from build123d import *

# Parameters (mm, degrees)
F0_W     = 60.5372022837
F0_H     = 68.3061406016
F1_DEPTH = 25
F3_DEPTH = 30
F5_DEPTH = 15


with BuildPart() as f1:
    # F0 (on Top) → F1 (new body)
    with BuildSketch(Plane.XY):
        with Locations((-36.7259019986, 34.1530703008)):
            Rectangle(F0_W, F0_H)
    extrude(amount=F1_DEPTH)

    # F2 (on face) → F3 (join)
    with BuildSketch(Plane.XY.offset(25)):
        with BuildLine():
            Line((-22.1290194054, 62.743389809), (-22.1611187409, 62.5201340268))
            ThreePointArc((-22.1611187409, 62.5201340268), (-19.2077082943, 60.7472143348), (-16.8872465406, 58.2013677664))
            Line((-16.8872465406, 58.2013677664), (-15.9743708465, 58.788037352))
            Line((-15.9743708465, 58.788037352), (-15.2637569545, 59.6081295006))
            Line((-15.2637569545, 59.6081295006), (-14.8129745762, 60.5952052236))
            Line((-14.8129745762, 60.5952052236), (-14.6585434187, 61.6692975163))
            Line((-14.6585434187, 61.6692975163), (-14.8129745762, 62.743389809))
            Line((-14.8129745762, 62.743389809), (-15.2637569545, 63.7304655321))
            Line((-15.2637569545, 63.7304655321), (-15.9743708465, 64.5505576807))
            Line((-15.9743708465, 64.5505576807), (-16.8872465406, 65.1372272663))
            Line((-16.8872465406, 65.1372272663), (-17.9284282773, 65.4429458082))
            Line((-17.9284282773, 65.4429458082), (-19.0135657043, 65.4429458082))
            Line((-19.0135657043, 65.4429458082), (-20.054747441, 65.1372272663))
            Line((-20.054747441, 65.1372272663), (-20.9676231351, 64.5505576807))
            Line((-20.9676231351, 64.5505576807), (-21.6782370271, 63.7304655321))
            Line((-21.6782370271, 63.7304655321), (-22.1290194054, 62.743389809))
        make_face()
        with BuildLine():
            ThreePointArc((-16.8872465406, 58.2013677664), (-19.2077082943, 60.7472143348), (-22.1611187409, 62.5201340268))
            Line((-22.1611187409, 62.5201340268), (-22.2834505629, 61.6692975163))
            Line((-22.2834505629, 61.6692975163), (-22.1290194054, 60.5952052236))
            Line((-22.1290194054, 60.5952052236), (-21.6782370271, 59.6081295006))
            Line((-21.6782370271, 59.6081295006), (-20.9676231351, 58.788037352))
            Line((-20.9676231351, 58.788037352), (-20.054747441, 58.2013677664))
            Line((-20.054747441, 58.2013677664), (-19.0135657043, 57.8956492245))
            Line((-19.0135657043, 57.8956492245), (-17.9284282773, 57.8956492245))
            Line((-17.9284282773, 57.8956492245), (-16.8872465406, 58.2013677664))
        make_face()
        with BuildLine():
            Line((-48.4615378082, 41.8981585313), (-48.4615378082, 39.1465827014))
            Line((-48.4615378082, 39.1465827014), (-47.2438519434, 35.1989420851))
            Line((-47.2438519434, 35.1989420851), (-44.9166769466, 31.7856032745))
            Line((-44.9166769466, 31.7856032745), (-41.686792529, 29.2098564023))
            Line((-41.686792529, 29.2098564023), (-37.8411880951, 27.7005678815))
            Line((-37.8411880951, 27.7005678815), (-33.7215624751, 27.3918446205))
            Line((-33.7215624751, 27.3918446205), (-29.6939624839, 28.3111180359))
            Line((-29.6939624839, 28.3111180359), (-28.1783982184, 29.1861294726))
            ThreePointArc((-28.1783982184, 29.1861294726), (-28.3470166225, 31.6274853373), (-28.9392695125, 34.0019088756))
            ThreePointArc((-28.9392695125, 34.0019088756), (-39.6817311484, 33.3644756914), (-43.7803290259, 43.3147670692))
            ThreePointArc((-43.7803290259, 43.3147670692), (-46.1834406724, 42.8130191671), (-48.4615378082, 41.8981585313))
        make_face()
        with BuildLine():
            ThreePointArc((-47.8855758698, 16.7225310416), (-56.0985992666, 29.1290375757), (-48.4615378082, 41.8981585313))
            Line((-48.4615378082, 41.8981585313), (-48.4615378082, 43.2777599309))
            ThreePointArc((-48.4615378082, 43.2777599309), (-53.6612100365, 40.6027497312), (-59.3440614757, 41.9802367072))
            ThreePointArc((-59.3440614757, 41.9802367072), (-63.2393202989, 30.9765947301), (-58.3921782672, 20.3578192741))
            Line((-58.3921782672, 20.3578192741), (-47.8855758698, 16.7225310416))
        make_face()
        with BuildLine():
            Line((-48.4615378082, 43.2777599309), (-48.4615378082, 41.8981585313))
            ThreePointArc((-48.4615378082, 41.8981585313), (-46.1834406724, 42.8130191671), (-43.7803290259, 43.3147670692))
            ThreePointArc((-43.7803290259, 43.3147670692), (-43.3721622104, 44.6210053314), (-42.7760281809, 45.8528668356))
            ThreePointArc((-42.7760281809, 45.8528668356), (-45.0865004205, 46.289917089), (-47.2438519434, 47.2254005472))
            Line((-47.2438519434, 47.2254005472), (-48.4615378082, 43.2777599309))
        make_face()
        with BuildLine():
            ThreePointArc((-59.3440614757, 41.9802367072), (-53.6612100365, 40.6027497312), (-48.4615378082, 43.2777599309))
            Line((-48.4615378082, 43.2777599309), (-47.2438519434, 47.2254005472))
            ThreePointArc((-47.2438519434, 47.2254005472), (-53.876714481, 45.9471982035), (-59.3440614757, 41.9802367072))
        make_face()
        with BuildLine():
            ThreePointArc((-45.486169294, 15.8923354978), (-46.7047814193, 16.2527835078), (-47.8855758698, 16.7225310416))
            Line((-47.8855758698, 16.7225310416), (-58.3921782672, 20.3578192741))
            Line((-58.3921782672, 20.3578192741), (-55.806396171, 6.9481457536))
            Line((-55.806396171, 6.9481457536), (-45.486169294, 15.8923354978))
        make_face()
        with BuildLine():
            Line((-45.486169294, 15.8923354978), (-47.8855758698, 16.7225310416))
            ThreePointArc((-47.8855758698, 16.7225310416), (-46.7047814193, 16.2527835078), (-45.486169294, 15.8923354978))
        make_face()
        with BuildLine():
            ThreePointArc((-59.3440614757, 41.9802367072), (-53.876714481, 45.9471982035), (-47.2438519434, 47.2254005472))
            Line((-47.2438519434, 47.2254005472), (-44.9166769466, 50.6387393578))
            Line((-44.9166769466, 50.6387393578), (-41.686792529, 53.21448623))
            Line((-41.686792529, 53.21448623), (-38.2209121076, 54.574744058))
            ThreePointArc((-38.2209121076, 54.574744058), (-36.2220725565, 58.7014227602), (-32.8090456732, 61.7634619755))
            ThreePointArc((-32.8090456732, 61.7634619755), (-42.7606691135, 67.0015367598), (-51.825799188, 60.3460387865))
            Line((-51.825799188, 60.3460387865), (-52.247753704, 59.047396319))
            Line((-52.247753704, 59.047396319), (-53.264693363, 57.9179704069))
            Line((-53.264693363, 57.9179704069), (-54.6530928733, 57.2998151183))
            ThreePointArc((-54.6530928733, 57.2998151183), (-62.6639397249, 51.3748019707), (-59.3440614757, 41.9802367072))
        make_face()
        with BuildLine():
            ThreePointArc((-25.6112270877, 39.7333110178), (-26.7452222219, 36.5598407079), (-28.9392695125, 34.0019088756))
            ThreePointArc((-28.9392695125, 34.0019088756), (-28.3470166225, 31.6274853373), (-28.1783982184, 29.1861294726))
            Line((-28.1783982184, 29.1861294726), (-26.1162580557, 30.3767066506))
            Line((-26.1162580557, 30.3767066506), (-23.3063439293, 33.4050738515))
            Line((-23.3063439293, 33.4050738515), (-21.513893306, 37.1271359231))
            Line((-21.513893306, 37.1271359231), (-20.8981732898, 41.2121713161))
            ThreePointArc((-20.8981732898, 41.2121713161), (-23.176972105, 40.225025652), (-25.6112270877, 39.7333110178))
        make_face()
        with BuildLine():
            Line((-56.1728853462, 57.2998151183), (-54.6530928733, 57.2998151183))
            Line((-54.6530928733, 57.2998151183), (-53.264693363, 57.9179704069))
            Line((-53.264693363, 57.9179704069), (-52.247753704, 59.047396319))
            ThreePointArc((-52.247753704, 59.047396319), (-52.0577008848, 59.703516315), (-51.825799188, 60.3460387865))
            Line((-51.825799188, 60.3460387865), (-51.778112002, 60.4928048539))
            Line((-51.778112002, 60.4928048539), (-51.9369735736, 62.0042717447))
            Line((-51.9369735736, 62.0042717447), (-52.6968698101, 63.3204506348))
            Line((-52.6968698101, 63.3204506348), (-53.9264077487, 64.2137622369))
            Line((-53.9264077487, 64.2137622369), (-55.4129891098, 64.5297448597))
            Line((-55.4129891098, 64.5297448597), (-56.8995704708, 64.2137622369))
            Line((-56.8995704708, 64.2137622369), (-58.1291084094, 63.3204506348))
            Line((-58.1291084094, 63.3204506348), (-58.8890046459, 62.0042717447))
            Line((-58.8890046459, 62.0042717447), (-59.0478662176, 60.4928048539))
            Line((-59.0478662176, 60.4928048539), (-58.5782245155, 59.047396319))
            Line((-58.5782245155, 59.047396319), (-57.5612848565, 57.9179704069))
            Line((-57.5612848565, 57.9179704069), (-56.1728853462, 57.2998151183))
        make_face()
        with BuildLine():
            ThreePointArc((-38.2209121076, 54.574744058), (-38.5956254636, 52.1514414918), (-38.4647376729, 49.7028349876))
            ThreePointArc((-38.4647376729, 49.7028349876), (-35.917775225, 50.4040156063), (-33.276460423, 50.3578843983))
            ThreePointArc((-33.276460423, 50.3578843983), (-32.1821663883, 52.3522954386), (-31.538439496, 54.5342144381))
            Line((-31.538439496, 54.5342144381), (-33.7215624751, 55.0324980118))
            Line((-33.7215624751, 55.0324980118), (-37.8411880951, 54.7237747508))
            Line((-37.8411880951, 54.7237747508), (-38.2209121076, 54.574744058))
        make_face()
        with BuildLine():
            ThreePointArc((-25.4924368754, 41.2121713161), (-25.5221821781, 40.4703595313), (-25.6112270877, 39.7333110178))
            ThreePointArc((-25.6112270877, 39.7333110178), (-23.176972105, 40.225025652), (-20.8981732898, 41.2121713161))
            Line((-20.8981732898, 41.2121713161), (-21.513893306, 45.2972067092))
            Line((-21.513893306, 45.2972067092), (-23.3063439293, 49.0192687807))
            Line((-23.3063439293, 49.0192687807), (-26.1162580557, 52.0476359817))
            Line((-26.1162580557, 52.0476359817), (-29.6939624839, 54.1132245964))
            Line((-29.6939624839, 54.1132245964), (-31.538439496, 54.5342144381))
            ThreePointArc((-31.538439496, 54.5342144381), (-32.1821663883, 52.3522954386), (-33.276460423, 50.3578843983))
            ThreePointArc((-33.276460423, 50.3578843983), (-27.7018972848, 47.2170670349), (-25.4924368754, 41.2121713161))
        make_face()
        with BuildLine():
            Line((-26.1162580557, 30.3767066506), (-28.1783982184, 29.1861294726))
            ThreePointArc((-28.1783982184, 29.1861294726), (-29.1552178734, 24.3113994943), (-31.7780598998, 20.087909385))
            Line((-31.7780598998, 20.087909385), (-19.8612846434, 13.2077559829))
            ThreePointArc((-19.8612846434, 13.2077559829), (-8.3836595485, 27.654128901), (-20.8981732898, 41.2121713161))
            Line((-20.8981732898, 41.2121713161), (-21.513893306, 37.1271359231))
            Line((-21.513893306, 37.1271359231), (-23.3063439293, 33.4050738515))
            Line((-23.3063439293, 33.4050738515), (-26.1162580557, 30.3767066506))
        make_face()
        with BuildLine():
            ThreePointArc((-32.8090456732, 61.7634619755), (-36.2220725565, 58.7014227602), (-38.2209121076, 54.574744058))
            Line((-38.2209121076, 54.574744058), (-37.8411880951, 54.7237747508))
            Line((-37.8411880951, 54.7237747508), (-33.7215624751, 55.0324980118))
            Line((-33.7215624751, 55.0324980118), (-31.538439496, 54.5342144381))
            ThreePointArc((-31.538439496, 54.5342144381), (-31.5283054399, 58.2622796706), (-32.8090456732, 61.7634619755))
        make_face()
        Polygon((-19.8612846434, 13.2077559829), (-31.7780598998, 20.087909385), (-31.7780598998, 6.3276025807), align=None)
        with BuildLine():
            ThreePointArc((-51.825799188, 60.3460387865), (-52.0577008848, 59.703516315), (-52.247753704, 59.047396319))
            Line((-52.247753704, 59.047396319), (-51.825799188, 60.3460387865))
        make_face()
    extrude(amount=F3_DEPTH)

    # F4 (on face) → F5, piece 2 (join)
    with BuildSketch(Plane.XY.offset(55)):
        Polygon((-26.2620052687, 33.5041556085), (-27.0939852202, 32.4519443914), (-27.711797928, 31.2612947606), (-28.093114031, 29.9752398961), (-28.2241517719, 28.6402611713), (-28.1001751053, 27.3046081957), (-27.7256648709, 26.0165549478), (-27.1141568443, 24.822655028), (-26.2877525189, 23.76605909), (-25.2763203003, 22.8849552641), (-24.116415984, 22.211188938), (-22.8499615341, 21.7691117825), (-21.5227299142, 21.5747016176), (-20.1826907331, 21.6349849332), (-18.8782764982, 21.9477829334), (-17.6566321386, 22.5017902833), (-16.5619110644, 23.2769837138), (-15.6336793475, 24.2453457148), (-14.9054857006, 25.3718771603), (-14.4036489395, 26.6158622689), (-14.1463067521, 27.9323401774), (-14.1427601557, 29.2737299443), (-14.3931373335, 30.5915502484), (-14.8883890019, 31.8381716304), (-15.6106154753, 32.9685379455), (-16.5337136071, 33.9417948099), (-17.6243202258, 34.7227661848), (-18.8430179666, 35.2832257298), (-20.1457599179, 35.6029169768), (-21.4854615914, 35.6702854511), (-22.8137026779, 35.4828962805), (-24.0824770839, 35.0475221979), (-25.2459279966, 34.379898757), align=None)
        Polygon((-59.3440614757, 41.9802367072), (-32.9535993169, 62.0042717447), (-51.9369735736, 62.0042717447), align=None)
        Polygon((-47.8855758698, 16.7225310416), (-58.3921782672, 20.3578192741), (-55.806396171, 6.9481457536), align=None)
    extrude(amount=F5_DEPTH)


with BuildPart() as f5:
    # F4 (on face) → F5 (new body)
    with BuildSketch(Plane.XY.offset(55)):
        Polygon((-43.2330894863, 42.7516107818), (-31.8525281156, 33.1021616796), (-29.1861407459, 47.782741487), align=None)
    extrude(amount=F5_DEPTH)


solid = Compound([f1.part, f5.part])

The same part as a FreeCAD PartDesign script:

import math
import FreeCAD as App
import Part
import Sketcher
from FreeCAD import Vector
Q = App.Units.Quantity

doc = App.newDocument("Part")
body = doc.addObject("PartDesign::Body", "Body")

sketch1 = doc.addObject("Sketcher::SketchObject", "Sketch")
body.addObject(sketch1)
sketch1.AttachmentSupport = (doc.XY_Plane, [""])
sketch1.MapMode = "FlatFace"
sketch1.addGeometry(Part.LineSegment(Vector(-66.994503, 68.306141, 0), Vector(-66.994503, 0, 0)), False)
sketch1.addGeometry(Part.LineSegment(Vector(-66.994503, 0, 0), Vector(-6.457301, 0, 0)), False)
sketch1.addGeometry(Part.LineSegment(Vector(-6.457301, 0, 0), Vector(-6.457301, 68.306141, 0)), False)
sketch1.addGeometry(Part.LineSegment(Vector(-6.457301, 68.306141, 0), Vector(-66.994503, 68.306141, 0)), False)
sketch1.addConstraint(Sketcher.Constraint("Coincident", 0, 2, 1, 1))
sketch1.addConstraint(Sketcher.Constraint("Coincident", 1, 2, 2, 1))
sketch1.addConstraint(Sketcher.Constraint("Coincident", 2, 2, 3, 1))
sketch1.addConstraint(Sketcher.Constraint("Coincident", 3, 2, 0, 1))
sketch1.addConstraint(Sketcher.Constraint("Vertical", 0))
sketch1.addConstraint(Sketcher.Constraint("Horizontal", 1))
sketch1.addConstraint(Sketcher.Constraint("Vertical", 2))
sketch1.addConstraint(Sketcher.Constraint("Horizontal", 3))
sketch1.addConstraint(Sketcher.Constraint("PointOnObject", 0, 2, -1))
sketch1.addConstraint(Sketcher.Constraint("DistanceY", 0, 2, 0, 1, 68.306141))
sketch1.addConstraint(Sketcher.Constraint("DistanceX", 1, 2, -1, 1, 6.457301))
sketch1.addConstraint(Sketcher.Constraint("DistanceX", 1, 1, 1, 2, 60.537202))
pad1 = doc.addObject("PartDesign::Pad", "Pad")
body.addObject(pad1)
pad1.Profile = sketch1
pad1.Length = 25

sketch2 = doc.addObject("Sketcher::SketchObject", "Sketch001")
body.addObject(sketch2)
sketch2.AttachmentSupport = (doc.XY_Plane, [""])
sketch2.MapMode = "FlatFace"
sketch2.AttachmentOffset = App.Placement(Vector(0, 0, 25), App.Rotation())
sketch2.addGeometry(Part.LineSegment(Vector(-22.129019, 62.74339, 0), Vector(-22.161119, 62.520134, 0)), False)
sketch2.addGeometry(Part.LineSegment(Vector(-22.161119, 62.520134, 0), Vector(-22.283451, 61.669298, 0)), False)
sketch2.addGeometry(Part.LineSegment(Vector(-22.283451, 61.669298, 0), Vector(-22.129019, 60.595205, 0)), False)
sketch2.addGeometry(Part.LineSegment(Vector(-22.129019, 60.595205, 0), Vector(-21.678237, 59.60813, 0)), False)
sketch2.addGeometry(Part.LineSegment(Vector(-21.678237, 59.60813, 0), Vector(-20.967623, 58.788037, 0)), False)
sketch2.addGeometry(Part.LineSegment(Vector(-20.967623, 58.788037, 0), Vector(-20.054747, 58.201368, 0)), False)
sketch2.addGeometry(Part.LineSegment(Vector(-20.054747, 58.201368, 0), Vector(-19.013566, 57.895649, 0)), False)
sketch2.addGeometry(Part.LineSegment(Vector(-19.013566, 57.895649, 0), Vector(-17.928428, 57.895649, 0)), False)
sketch2.addGeometry(Part.LineSegment(Vector(-17.928428, 57.895649, 0), Vector(-16.887247, 58.201368, 0)), False)
sketch2.addGeometry(Part.LineSegment(Vector(-16.887247, 58.201368, 0), Vector(-15.974371, 58.788037, 0)), False)
sketch2.addGeometry(Part.LineSegment(Vector(-15.974371, 58.788037, 0), Vector(-15.263757, 59.60813, 0)), False)
sketch2.addGeometry(Part.LineSegment(Vector(-15.263757, 59.60813, 0), Vector(-14.812975, 60.595205, 0)), False)
sketch2.addGeometry(Part.LineSegment(Vector(-14.812975, 60.595205, 0), Vector(-14.658543, 61.669298, 0)), False)
sketch2.addGeometry(Part.LineSegment(Vector(-14.658543, 61.669298, 0), Vector(-14.812975, 62.74339, 0)), False)
sketch2.addGeometry(Part.LineSegment(Vector(-14.812975, 62.74339, 0), Vector(-15.263757, 63.730466, 0)), False)
sketch2.addGeometry(Part.LineSegment(Vector(-15.263757, 63.730466, 0), Vector(-15.974371, 64.550558, 0)), False)
sketch2.addGeometry(Part.LineSegment(Vector(-15.974371, 64.550558, 0), Vector(-16.887247, 65.137227, 0)), False)
sketch2.addGeometry(Part.LineSegment(Vector(-16.887247, 65.137227, 0), Vector(-17.928428, 65.442946, 0)), False)
sketch2.addGeometry(Part.LineSegment(Vector(-17.928428, 65.442946, 0), Vector(-19.013566, 65.442946, 0)), False)
sketch2.addGeometry(Part.LineSegment(Vector(-19.013566, 65.442946, 0), Vector(-20.054747, 65.137227, 0)), False)
sketch2.addGeometry(Part.LineSegment(Vector(-20.054747, 65.137227, 0), Vector(-20.967623, 64.550558, 0)), False)
sketch2.addGeometry(Part.LineSegment(Vector(-20.967623, 64.550558, 0), Vector(-21.678237, 63.730466, 0)), False)
sketch2.addGeometry(Part.LineSegment(Vector(-21.678237, 63.730466, 0), Vector(-22.129019, 62.74339, 0)), False)
sketch2.addGeometry(Part.ArcOfCircle(Part.Circle(Vector(-41.972463, 56.426624, 0), Vector(0, 0, 1), 10.604247), math.radians(30.216821), math.radians(158.308554)), False)
sketch2.addGeometry(Part.LineSegment(Vector(-51.825799, 60.346039, 0), Vector(-51.778112, 60.492805, 0)), False)
sketch2.addGeometry(Part.LineSegment(Vector(-51.778112, 60.492805, 0), Vector(-51.936974, 62.004272, 0)), False)
sketch2.addGeometry(Part.LineSegment(Vector(-51.936974, 62.004272, 0), Vector(-52.69687, 63.320451, 0)), False)
sketch2.addGeometry(Part.LineSegment(Vector(-52.69687, 63.320451, 0), Vector(-53.926408, 64.213762, 0)), False)
sketch2.addGeometry(Part.LineSegment(Vector(-53.926408, 64.213762, 0), Vector(-55.412989, 64.529745, 0)), False)
sketch2.addGeometry(Part.LineSegment(Vector(-55.412989, 64.529745, 0), Vector(-56.89957, 64.213762, 0)), False)
sketch2.addGeometry(Part.LineSegment(Vector(-56.89957, 64.213762, 0), Vector(-58.129108, 63.320451, 0)), False)
sketch2.addGeometry(Part.LineSegment(Vector(-58.129108, 63.320451, 0), Vector(-58.889005, 62.004272, 0)), False)
sketch2.addGeometry(Part.LineSegment(Vector(-58.889005, 62.004272, 0), Vector(-59.047866, 60.492805, 0)), False)
sketch2.addGeometry(Part.LineSegment(Vector(-59.047866, 60.492805, 0), Vector(-58.578225, 59.047396, 0)), False)
sketch2.addGeometry(Part.LineSegment(Vector(-58.578225, 59.047396, 0), Vector(-57.561285, 57.91797, 0)), False)
sketch2.addGeometry(Part.LineSegment(Vector(-57.561285, 57.91797, 0), Vector(-56.172885, 57.299815, 0)), False)
sketch2.addGeometry(Part.LineSegment(Vector(-56.172885, 57.299815, 0), Vector(-54.653093, 57.299815, 0)), False)
sketch2.addGeometry(Part.ArcOfCircle(Part.Circle(Vector(-54.653093, 48.921821, 0), Vector(0, 0, 1), 8.377994), math.radians(90), math.radians(235.950046)), False)
sketch2.addGeometry(Part.ArcOfCircle(Part.Circle(Vector(-47.684139, 31.66138, 0), Vector(0, 0, 1), 15.570247), math.radians(138.491652), math.radians(226.549754)), False)
sketch2.addGeometry(Part.LineSegment(Vector(-58.392178, 20.357819, 0), Vector(-55.806396, 6.948146, 0)), False)
sketch2.addGeometry(Part.LineSegment(Vector(-55.806396, 6.948146, 0), Vector(-45.486169, 15.892335, 0)), False)
sketch2.addGeometry(Part.LineSegment(Vector(-45.486169, 15.892335, 0), Vector(-47.885576, 16.722531, 0)), False)
sketch2.addGeometry(Part.ArcOfCircle(Part.Circle(Vector(-42.139093, 29.4484, 0), Vector(0, 0, 1), 13.963159), math.radians(116.923132), math.radians(245.698009)), False)
sketch2.addGeometry(Part.LineSegment(Vector(-48.461538, 41.898159, 0), Vector(-48.461538, 39.146583, 0)), False)
sketch2.addGeometry(Part.LineSegment(Vector(-48.461538, 39.146583, 0), Vector(-47.243852, 35.198942, 0)), False)
sketch2.addGeometry(Part.LineSegment(Vector(-47.243852, 35.198942, 0), Vector(-44.916677, 31.785603, 0)), False)
sketch2.addGeometry(Part.LineSegment(Vector(-44.916677, 31.785603, 0), Vector(-41.686793, 29.209856, 0)), False)
sketch2.addGeometry(Part.LineSegment(Vector(-41.686793, 29.209856, 0), Vector(-37.841188, 27.700568, 0)), False)
sketch2.addGeometry(Part.LineSegment(Vector(-37.841188, 27.700568, 0), Vector(-33.721562, 27.391845, 0)), False)
sketch2.addGeometry(Part.LineSegment(Vector(-33.721562, 27.391845, 0), Vector(-29.693962, 28.311118, 0)), False)
sketch2.addGeometry(Part.LineSegment(Vector(-29.693962, 28.311118, 0), Vector(-28.178398, 29.186129, 0)), False)
sketch2.addGeometry(Part.ArcOfCircle(Part.Circle(Vector(-42.139093, 29.4484, 0), Vector(0, 0, 1), 13.963159), math.radians(-42.095671), math.radians(-1.076251)), False)
sketch2.addGeometry(Part.LineSegment(Vector(-31.77806, 20.087909, 0), Vector(-31.77806, 6.327603, 0)), False)
sketch2.addGeometry(Part.LineSegment(Vector(-31.77806, 6.327603, 0), Vector(-19.861285, 13.207756, 0)), False)
sketch2.addGeometry(Part.ArcOfCircle(Part.Circle(Vector(-22.553613, 27.129474, 0), Vector(0, 0, 1), 14.179663), math.radians(-79.054654), math.radians(83.295572)), False)
sketch2.addGeometry(Part.LineSegment(Vector(-20.898173, 41.212171, 0), Vector(-21.513893, 45.297207, 0)), False)
sketch2.addGeometry(Part.LineSegment(Vector(-21.513893, 45.297207, 0), Vector(-23.306344, 49.019269, 0)), False)
sketch2.addGeometry(Part.LineSegment(Vector(-23.306344, 49.019269, 0), Vector(-26.116258, 52.047636, 0)), False)
sketch2.addGeometry(Part.LineSegment(Vector(-26.116258, 52.047636, 0), Vector(-29.693962, 54.113225, 0)), False)
sketch2.addGeometry(Part.LineSegment(Vector(-29.693962, 54.113225, 0), Vector(-31.538439, 54.534214, 0)), False)
sketch2.addGeometry(Part.ArcOfCircle(Part.Circle(Vector(-41.972463, 56.426624, 0), Vector(0, 0, 1), 10.604247), math.radians(-10.279937), math.radians(30.216821)), False)
sketch2.addGeometry(Part.LineSegment(Vector(-41.686793, 53.214486, 0), Vector(-38.220912, 54.574744, 0)), False)
sketch2.addGeometry(Part.ArcOfCircle(Part.Circle(Vector(-26.732949, 51.557747, 0), Vector(0, 0, 1), 11.877523), math.radians(165.285134), math.radians(188.984657)), False)
sketch2.addGeometry(Part.ArcOfCircle(Part.Circle(Vector(-34.757253, 41.212171, 0), Vector(0, 0, 1), 9.264816), math.radians(80.802991), math.radians(113.588695)), False)
sketch2.addGeometry(Part.ArcOfCircle(Part.Circle(Vector(-34.757253, 41.212171, 0), Vector(0, 0, 1), 9.264816), math.radians(-9.184905), math.radians(80.802991)), False)
sketch2.addGeometry(Part.ArcOfCircle(Part.Circle(Vector(-34.757253, 41.212171, 0), Vector(0, 0, 1), 9.264816), math.radians(-51.099832), math.radians(-9.184905)), False)
sketch2.addGeometry(Part.ArcOfCircle(Part.Circle(Vector(-34.757253, 41.212171, 0), Vector(0, 0, 1), 9.264816), math.radians(166.882773), math.radians(308.900168)), False)
sketch2.addGeometry(Part.ArcOfCircle(Part.Circle(Vector(-34.757253, 41.212171, 0), Vector(0, 0, 1), 9.264816), math.radians(149.940801), math.radians(166.882773)), False)
sketch2.addGeometry(Part.ArcOfCircle(Part.Circle(Vector(-41.972463, 56.426624, 0), Vector(0, 0, 1), 10.604247), math.radians(-119.808435), math.radians(-94.345909)), False)
sketch2.addGeometry(Part.LineSegment(Vector(-47.243852, 47.225401, 0), Vector(-44.916677, 50.638739, 0)), False)
sketch2.addGeometry(Part.LineSegment(Vector(-44.916677, 50.638739, 0), Vector(-41.686793, 53.214486, 0)), False)
sketch2.addConstraint(Sketcher.Constraint("Coincident", 0, 2, 1, 1))
sketch2.addConstraint(Sketcher.Constraint("Coincident", 1, 2, 2, 1))
sketch2.addConstraint(Sketcher.Constraint("Coincident", 2, 2, 3, 1))
sketch2.addConstraint(Sketcher.Constraint("Coincident", 3, 2, 4, 1))
sketch2.addConstraint(Sketcher.Constraint("Coincident", 4, 2, 5, 1))
sketch2.addConstraint(Sketcher.Constraint("Coincident", 5, 2, 6, 1))
sketch2.addConstraint(Sketcher.Constraint("Coincident", 6, 2, 7, 1))
sketch2.addConstraint(Sketcher.Constraint("Coincident", 7, 2, 8, 1))
sketch2.addConstraint(Sketcher.Constraint("Coincident", 8, 2, 9, 1))
sketch2.addConstraint(Sketcher.Constraint("Coincident", 9, 2, 10, 1))
sketch2.addConstraint(Sketcher.Constraint("Coincident", 10, 2, 11, 1))
sketch2.addConstraint(Sketcher.Constraint("Coincident", 11, 2, 12, 1))
sketch2.addConstraint(Sketcher.Constraint("Coincident", 12, 2, 13, 1))
sketch2.addConstraint(Sketcher.Constraint("Coincident", 13, 2, 14, 1))
sketch2.addConstraint(Sketcher.Constraint("Coincident", 14, 2, 15, 1))
sketch2.addConstraint(Sketcher.Constraint("Coincident", 15, 2, 16, 1))
sketch2.addConstraint(Sketcher.Constraint("Coincident", 16, 2, 17, 1))
sketch2.addConstraint(Sketcher.Constraint("Coincident", 17, 2, 18, 1))
sketch2.addConstraint(Sketcher.Constraint("Coincident", 18, 2, 19, 1))
sketch2.addConstraint(Sketcher.Constraint("Coincident", 19, 2, 20, 1))
sketch2.addConstraint(Sketcher.Constraint("Coincident", 20, 2, 21, 1))
sketch2.addConstraint(Sketcher.Constraint("Coincident", 21, 2, 22, 1))
sketch2.addConstraint(Sketcher.Constraint("Coincident", 22, 2, 0, 1))
sketch2.addConstraint(Sketcher.Constraint("Coincident", 23, 2, 24, 1))
sketch2.addConstraint(Sketcher.Constraint("Coincident", 24, 2, 25, 1))
sketch2.addConstraint(Sketcher.Constraint("Coincident", 25, 2, 26, 1))
sketch2.addConstraint(Sketcher.Constraint("Coincident", 26, 2, 27, 1))
sketch2.addConstraint(Sketcher.Constraint("Coincident", 27, 2, 28, 1))
sketch2.addConstraint(Sketcher.Constraint("Coincident", 28, 2, 29, 1))
sketch2.addConstraint(Sketcher.Constraint("Coincident", 29, 2, 30, 1))
sketch2.addConstraint(Sketcher.Constraint("Coincident", 30, 2, 31, 1))
sketch2.addConstraint(Sketcher.Constraint("Coincident", 31, 2, 32, 1))
sketch2.addConstraint(Sketcher.Constraint("Coincident", 32, 2, 33, 1))
sketch2.addConstraint(Sketcher.Constraint("Coincident", 33, 2, 34, 1))
sketch2.addConstraint(Sketcher.Constraint("Coincident", 34, 2, 35, 1))
sketch2.addConstraint(Sketcher.Constraint("Coincident", 35, 2, 36, 1))
sketch2.addConstraint(Sketcher.Constraint("Tangent", 36, 2, 37, 1))
sketch2.addConstraint(Sketcher.Constraint("Coincident", 37, 2, 38, 1))
sketch2.addConstraint(Sketcher.Constraint("Coincident", 38, 2, 39, 1))
sketch2.addConstraint(Sketcher.Constraint("Coincident", 39, 2, 40, 1))
sketch2.addConstraint(Sketcher.Constraint("Coincident", 40, 2, 41, 1))
sketch2.addConstraint(Sketcher.Constraint("Coincident", 41, 2, 42, 2))
sketch2.addConstraint(Sketcher.Constraint("Coincident", 42, 1, 43, 1))
sketch2.addConstraint(Sketcher.Constraint("Coincident", 43, 2, 44, 1))
sketch2.addConstraint(Sketcher.Constraint("Coincident", 44, 2, 45, 1))
sketch2.addConstraint(Sketcher.Constraint("Coincident", 45, 2, 46, 1))
sketch2.addConstraint(Sketcher.Constraint("Coincident", 46, 2, 47, 1))
sketch2.addConstraint(Sketcher.Constraint("Coincident", 47, 2, 48, 1))
sketch2.addConstraint(Sketcher.Constraint("Coincident", 48, 2, 49, 1))
sketch2.addConstraint(Sketcher.Constraint("Coincident", 49, 2, 50, 1))
sketch2.addConstraint(Sketcher.Constraint("Coincident", 50, 2, 51, 2))
sketch2.addConstraint(Sketcher.Constraint("Coincident", 51, 1, 52, 1))
sketch2.addConstraint(Sketcher.Constraint("Coincident", 52, 2, 53, 1))
sketch2.addConstraint(Sketcher.Constraint("Coincident", 53, 2, 54, 1))
sketch2.addConstraint(Sketcher.Constraint("Coincident", 54, 2, 55, 1))
sketch2.addConstraint(Sketcher.Constraint("Coincident", 55, 2, 56, 1))
sketch2.addConstraint(Sketcher.Constraint("Coincident", 56, 2, 57, 1))
sketch2.addConstraint(Sketcher.Constraint("Coincident", 57, 2, 58, 1))
sketch2.addConstraint(Sketcher.Constraint("Coincident", 58, 2, 59, 1))
sketch2.addConstraint(Sketcher.Constraint("Coincident", 59, 2, 60, 1))
sketch2.addConstraint(Sketcher.Constraint("Tangent", 60, 2, 23, 1))
sketch2.addConstraint(Sketcher.Constraint("Coincident", 61, 2, 62, 1))
sketch2.addConstraint(Sketcher.Constraint("Coincident", 62, 2, 63, 2))
sketch2.addConstraint(Sketcher.Constraint("Tangent", 63, 1, 64, 2))
sketch2.addConstraint(Sketcher.Constraint("Tangent", 64, 1, 65, 2))
sketch2.addConstraint(Sketcher.Constraint("Tangent", 65, 1, 66, 2))
sketch2.addConstraint(Sketcher.Constraint("Tangent", 66, 1, 67, 2))
sketch2.addConstraint(Sketcher.Constraint("Coincident", 67, 1, 68, 2))
sketch2.addConstraint(Sketcher.Constraint("Coincident", 68, 1, 69, 1))
sketch2.addConstraint(Sketcher.Constraint("Coincident", 69, 2, 70, 1))
sketch2.addConstraint(Sketcher.Constraint("Coincident", 70, 2, 61, 1))
sketch2.addConstraint(Sketcher.Constraint("Horizontal", 7))
sketch2.addConstraint(Sketcher.Constraint("Horizontal", 18))
sketch2.addConstraint(Sketcher.Constraint("Horizontal", 36))
sketch2.addConstraint(Sketcher.Constraint("Vertical", 43))
sketch2.addConstraint(Sketcher.Constraint("Vertical", 52))
sketch2.addConstraint(Sketcher.Constraint("Coincident", 51, 3, 42, 3))
sketch2.addConstraint(Sketcher.Constraint("Coincident", 65, 3, 63, 3))
sketch2.addConstraint(Sketcher.Constraint("Coincident", 67, 3, 63, 3))
sketch2.addConstraint(Sketcher.Constraint("Coincident", 68, 3, 23, 3))
sketch2.addConstraint(Sketcher.Constraint("Equal", 42, 51))
sketch2.addConstraint(Sketcher.Constraint("Equal", 23, 60))
sketch2.addConstraint(Sketcher.Constraint("Equal", 60, 68))
sketch2.addConstraint(Sketcher.Constraint("Parallel", 0, 1))
sketch2.addConstraint(Sketcher.Constraint("Parallel", 1, 12))
sketch2.addConstraint(Sketcher.Constraint("Parallel", 2, 13))
sketch2.addConstraint(Sketcher.Constraint("Parallel", 3, 14))
sketch2.addConstraint(Sketcher.Constraint("Parallel", 4, 15))
sketch2.addConstraint(Sketcher.Constraint("Parallel", 5, 16))
sketch2.addConstraint(Sketcher.Constraint("Parallel", 6, 17))
sketch2.addConstraint(Sketcher.Constraint("Parallel", 8, 19))
sketch2.addConstraint(Sketcher.Constraint("Parallel", 9, 20))
sketch2.addConstraint(Sketcher.Constraint("Parallel", 10, 21))
sketch2.addConstraint(Sketcher.Constraint("Parallel", 11, 22))
sketch2.addConstraint(Sketcher.Constraint("Perpendicular", 26, 50))
sketch2.addConstraint(Sketcher.Constraint("Parallel", 50, 53))
sketch2.addConstraint(Sketcher.Constraint("Perpendicular", 31, 58))
sketch2.addConstraint(Sketcher.Constraint("Horizontal", 5, 2, 8, 2))
sketch2.addConstraint(Sketcher.Constraint("Horizontal", 4, 2, 9, 2))
sketch2.addConstraint(Sketcher.Constraint("Horizontal", 3, 2, 10, 2))
sketch2.addConstraint(Sketcher.Constraint("Horizontal", 2, 2, 11, 2))
sketch2.addConstraint(Sketcher.Constraint("Horizontal", 1, 2, 12, 2))
sketch2.addConstraint(Sketcher.Constraint("Horizontal", 16, 2, 19, 2))
sketch2.addConstraint(Sketcher.Constraint("Horizontal", 15, 2, 20, 2))
sketch2.addConstraint(Sketcher.Constraint("Horizontal", 14, 2, 21, 2))
sketch2.addConstraint(Sketcher.Constraint("Horizontal", 13, 2, 22, 2))
sketch2.addConstraint(Sketcher.Constraint("Horizontal", 27, 2, 29, 2))
sketch2.addConstraint(Sketcher.Constraint("Horizontal", 26, 2, 30, 2))
sketch2.addConstraint(Sketcher.Constraint("Horizontal", 25, 2, 31, 2))
sketch2.addConstraint(Sketcher.Constraint("Horizontal", 24, 2, 32, 2))
sketch2.addConstraint(Sketcher.Constraint("Horizontal", 67, 3, 54, 2))
sketch2.addConstraint(Sketcher.Constraint("Vertical", 11, 2, 13, 2))
sketch2.addConstraint(Sketcher.Constraint("Vertical", 10, 2, 14, 2))
sketch2.addConstraint(Sketcher.Constraint("Vertical", 9, 2, 15, 2))
sketch2.addConstraint(Sketcher.Constraint("Vertical", 8, 2, 16, 2))
sketch2.addConstraint(Sketcher.Constraint("Vertical", 7, 2, 17, 2))
sketch2.addConstraint(Sketcher.Constraint("Vertical", 6, 2, 18, 2))
sketch2.addConstraint(Sketcher.Constraint("Vertical", 5, 2, 19, 2))
sketch2.addConstraint(Sketcher.Constraint("Vertical", 4, 2, 20, 2))
sketch2.addConstraint(Sketcher.Constraint("Vertical", 3, 2, 21, 2))
sketch2.addConstraint(Sketcher.Constraint("Vertical", 2, 2, 22, 2))
sketch2.addConstraint(Sketcher.Constraint("Vertical", 49, 2, 58, 2))
sketch2.addConstraint(Sketcher.Constraint("Vertical", 44, 2, 68, 1))
sketch2.addConstraint(Sketcher.Constraint("Vertical", 45, 2, 69, 2))
sketch2.addConstraint(Sketcher.Constraint("Vertical", 46, 2, 70, 2))
sketch2.addConstraint(Sketcher.Constraint("Equal", 2, 3))
sketch2.addConstraint(Sketcher.Constraint("Equal", 3, 4))
sketch2.addConstraint(Sketcher.Constraint("Equal", 4, 5))
sketch2.addConstraint(Sketcher.Constraint("Equal", 5, 6))
sketch2.addConstraint(Sketcher.Constraint("Equal", 25, 26))
sketch2.addConstraint(Sketcher.Constraint("Equal", 26, 27))
sketch2.addConstraint(Sketcher.Constraint("Equal", 27, 28))
sketch2.addConstraint(Sketcher.Constraint("Equal", 28, 29))
sketch2.addConstraint(Sketcher.Constraint("Equal", 29, 30))
sketch2.addConstraint(Sketcher.Constraint("Equal", 30, 31))
sketch2.addConstraint(Sketcher.Constraint("Equal", 31, 32))
sketch2.addConstraint(Sketcher.Constraint("Equal", 32, 33))
sketch2.addConstraint(Sketcher.Constraint("Equal", 33, 34))
sketch2.addConstraint(Sketcher.Constraint("Equal", 34, 35))
sketch2.addConstraint(Sketcher.Constraint("Equal", 39, 40))
sketch2.addConstraint(Sketcher.Constraint("Equal", 44, 45))
sketch2.addConstraint(Sketcher.Constraint("Equal", 45, 46))
sketch2.addConstraint(Sketcher.Constraint("Equal", 46, 47))
sketch2.addConstraint(Sketcher.Constraint("Equal", 47, 48))
sketch2.addConstraint(Sketcher.Constraint("Equal", 48, 49))
sketch2.addConstraint(Sketcher.Constraint("Equal", 49, 55))
sketch2.addConstraint(Sketcher.Constraint("Equal", 55, 56))
sketch2.addConstraint(Sketcher.Constraint("Equal", 56, 57))
sketch2.addConstraint(Sketcher.Constraint("Equal", 57, 58))
sketch2.addConstraint(Sketcher.Constraint("Equal", 58, 69))
sketch2.addConstraint(Sketcher.Constraint("Equal", 69, 70))
sketch2.addConstraint(Sketcher.Constraint("Angle", 24, Q("72 deg")))
sketch2.addConstraint(Sketcher.Constraint("Angle", 25, Q("96 deg")))
sketch2.addConstraint(Sketcher.Constraint("Angle", 26, Q("120 deg")))
sketch2.addConstraint(Sketcher.Constraint("Angle", 27, Q("144 deg")))
sketch2.addConstraint(Sketcher.Constraint("Angle", 28, Q("168 deg")))
sketch2.addConstraint(Sketcher.Constraint("Angle", 33, Q("-72 deg")))
sketch2.addConstraint(Sketcher.Constraint("Angle", 34, Q("-48 deg")))
sketch2.addConstraint(Sketcher.Constraint("Angle", 35, Q("-24 deg")))
sketch2.addConstraint(Sketcher.Constraint("Radius", 42, 13.963159))
sketch2.addConstraint(Sketcher.Constraint("Radius", 23, 10.604247))
sketch2.addConstraint(Sketcher.Constraint("Radius", 37, 8.377994))
sketch2.addConstraint(Sketcher.Constraint("Radius", 38, 15.570247))
sketch2.addConstraint(Sketcher.Constraint("Radius", 54, 14.179663))
sketch2.addConstraint(Sketcher.Constraint("Radius", 62, 11.877523))
sketch2.addConstraint(Sketcher.Constraint("Radius", 63, 9.264816))
sketch2.addConstraint(Sketcher.Constraint("DistanceY", -1, 1, 42, 3, 29.4484))
sketch2.addConstraint(Sketcher.Constraint("DistanceX", 23, 2, -1, 1, 51.825799))
sketch2.addConstraint(Sketcher.Constraint("DistanceX", 50, 2, -1, 1, 28.178398))
sketch2.addConstraint(Sketcher.Constraint("DistanceY", -1, 1, 68, 1, 47.225401))
sketch2.addConstraint(Sketcher.Constraint("Distance", 0, 0.225552))
sketch2.addConstraint(Sketcher.Constraint("Distance", 24, 0.154319))
sketch2.addConstraint(Sketcher.Constraint("Distance", 41, 2.538972))
sketch2.addConstraint(Sketcher.Constraint("Distance", 59, 1.891911))
sketch2.addConstraint(Sketcher.Constraint("DistanceX", 7, 1, 7, 2, 1.085137))
sketch2.addConstraint(Sketcher.Constraint("DistanceX", 36, 1, 36, 2, 1.519792))
sketch2.addConstraint(Sketcher.Constraint("DistanceY", 43, 2, 43, 1, 2.751576))
sketch2.addConstraint(Sketcher.Constraint("DistanceY", 52, 2, 52, 1, 13.760307))
sketch2.addConstraint(Sketcher.Constraint("DistanceY", -1, 1, 37, 3, 48.921821))
sketch2.addConstraint(Sketcher.Constraint("DistanceX", 38, 3, -1, 1, 47.684139))
sketch2.addConstraint(Sketcher.Constraint("DistanceY", -1, 1, 38, 3, 31.66138))
sketch2.addConstraint(Sketcher.Constraint("DistanceX", 62, 3, -1, 1, 26.732949))
sketch2.addConstraint(Sketcher.Constraint("DistanceY", -1, 1, 63, 3, 41.212171))
sketch2.addConstraint(Sketcher.Constraint("DistanceX", 0, 2, -1, 1, 22.161119))
sketch2.addConstraint(Sketcher.Constraint("DistanceX", 1, 2, -1, 1, 22.283451))
sketch2.addConstraint(Sketcher.Constraint("DistanceY", -1, 1, 3, 2, 59.60813))
sketch2.addConstraint(Sketcher.Constraint("DistanceY", -1, 1, 6, 2, 57.895649))
sketch2.addConstraint(Sketcher.Constraint("DistanceX", 7, 2, -1, 1, 17.928428))
sketch2.addConstraint(Sketcher.Constraint("DistanceX", 9, 2, -1, 1, 15.974371))
sketch2.addConstraint(Sketcher.Constraint("DistanceY", -1, 1, 13, 2, 62.74339))
sketch2.addConstraint(Sketcher.Constraint("DistanceY", -1, 1, 23, 2, 60.346039))
sketch2.addConstraint(Sketcher.Constraint("DistanceX", 38, 2, -1, 1, 58.392178))
sketch2.addConstraint(Sketcher.Constraint("DistanceX", 40, 2, -1, 1, 45.486169))
sketch2.addConstraint(Sketcher.Constraint("DistanceY", -1, 1, 41, 2, 16.722531))
sketch2.addConstraint(Sketcher.Constraint("DistanceY", -1, 1, 42, 1, 41.898159))
sketch2.addConstraint(Sketcher.Constraint("DistanceX", 44, 2, -1, 1, 47.243852))
sketch2.addConstraint(Sketcher.Constraint("DistanceX", 47, 2, -1, 1, 37.841188))
sketch2.addConstraint(Sketcher.Constraint("DistanceY", -1, 1, 49, 2, 28.311118))
sketch2.addConstraint(Sketcher.Constraint("DistanceY", -1, 1, 50, 2, 29.186129))
sketch2.addConstraint(Sketcher.Constraint("DistanceX", 51, 1, -1, 1, 31.77806))
sketch2.addConstraint(Sketcher.Constraint("DistanceY", -1, 1, 56, 2, 49.019269))
sketch2.addConstraint(Sketcher.Constraint("DistanceX", 57, 2, -1, 1, 26.116258))
sketch2.addConstraint(Sketcher.Constraint("DistanceX", 59, 2, -1, 1, 31.538439))
sketch2.addConstraint(Sketcher.Constraint("DistanceY", -1, 1, 60, 2, 61.763462))
sketch2.addConstraint(Sketcher.Constraint("DistanceX", 63, 1, -1, 1, 33.27646))
sketch2.addConstraint(Sketcher.Constraint("DistanceY", -1, 1, 64, 1, 39.733311))
sketch2.addConstraint(Sketcher.Constraint("DistanceX", 65, 1, -1, 1, 28.93927))
sketch2.addConstraint(Sketcher.Constraint("DistanceY", -1, 1, 65, 1, 34.001909))
sketch2.addConstraint(Sketcher.Constraint("DistanceX", 66, 1, -1, 1, 43.780329))
sketch2.addConstraint(Sketcher.Constraint("DistanceY", -1, 1, 69, 2, 50.638739))
sketch2.addConstraint(Sketcher.Constraint("Distance", 1, 0.859586))
sketch2.addConstraint(Sketcher.Constraint("Distance", 39, 13.656706))
sketch2.addConstraint(Sketcher.Constraint("Distance", 53, 13.760307))
sketch2.addConstraint(Sketcher.Constraint("Distance", 61, 3.723255))
sketch2.addConstraint(Sketcher.Constraint("DistanceX", 54, 3, -1, 1, 22.553613))
sketch2.addConstraint(Sketcher.Constraint("DistanceY", -1, 1, 62, 3, 51.557747))
sketch2.addConstraint(Sketcher.Constraint("DistanceX", 46, 2, -1, 1, 41.686793))
pad2 = doc.addObject("PartDesign::Pad", "Pad001")
body.addObject(pad2)
pad2.Profile = sketch2
pad2.Length = 30

sketch3 = doc.addObject("Sketcher::SketchObject", "Sketch002")
body.addObject(sketch3)
sketch3.AttachmentSupport = (doc.XY_Plane, [""])
sketch3.MapMode = "FlatFace"
sketch3.AttachmentOffset = App.Placement(Vector(0, 0, 55), App.Rotation())
sketch3.addGeometry(Part.LineSegment(Vector(-26.262005, 33.504156, 0), Vector(-27.093985, 32.451944, 0)), False)
sketch3.addGeometry(Part.LineSegment(Vector(-27.093985, 32.451944, 0), Vector(-27.711798, 31.261295, 0)), False)
sketch3.addGeometry(Part.LineSegment(Vector(-27.711798, 31.261295, 0), Vector(-28.093114, 29.97524, 0)), False)
sketch3.addGeometry(Part.LineSegment(Vector(-28.093114, 29.97524, 0), Vector(-28.224152, 28.640261, 0)), False)
sketch3.addGeometry(Part.LineSegment(Vector(-28.224152, 28.640261, 0), Vector(-28.100175, 27.304608, 0)), False)
sketch3.addGeometry(Part.LineSegment(Vector(-28.100175, 27.304608, 0), Vector(-27.725665, 26.016555, 0)), False)
sketch3.addGeometry(Part.LineSegment(Vector(-27.725665, 26.016555, 0), Vector(-27.114157, 24.822655, 0)), False)
sketch3.addGeometry(Part.LineSegment(Vector(-27.114157, 24.822655, 0), Vector(-26.287753, 23.766059, 0)), False)
sketch3.addGeometry(Part.LineSegment(Vector(-26.287753, 23.766059, 0), Vector(-25.27632, 22.884955, 0)), False)
sketch3.addGeometry(Part.LineSegment(Vector(-25.27632, 22.884955, 0), Vector(-24.116416, 22.211189, 0)), False)
sketch3.addGeometry(Part.LineSegment(Vector(-24.116416, 22.211189, 0), Vector(-22.849962, 21.769112, 0)), False)
sketch3.addGeometry(Part.LineSegment(Vector(-22.849962, 21.769112, 0), Vector(-21.52273, 21.574702, 0)), False)
sketch3.addGeometry(Part.LineSegment(Vector(-21.52273, 21.574702, 0), Vector(-20.182691, 21.634985, 0)), False)
sketch3.addGeometry(Part.LineSegment(Vector(-20.182691, 21.634985, 0), Vector(-18.878276, 21.947783, 0)), False)
sketch3.addGeometry(Part.LineSegment(Vector(-18.878276, 21.947783, 0), Vector(-17.656632, 22.50179, 0)), False)
sketch3.addGeometry(Part.LineSegment(Vector(-17.656632, 22.50179, 0), Vector(-16.561911, 23.276984, 0)), False)
sketch3.addGeometry(Part.LineSegment(Vector(-16.561911, 23.276984, 0), Vector(-15.633679, 24.245346, 0)), False)
sketch3.addGeometry(Part.LineSegment(Vector(-15.633679, 24.245346, 0), Vector(-14.905486, 25.371877, 0)), False)
sketch3.addGeometry(Part.LineSegment(Vector(-14.905486, 25.371877, 0), Vector(-14.403649, 26.615862, 0)), False)
sketch3.addGeometry(Part.LineSegment(Vector(-14.403649, 26.615862, 0), Vector(-14.146307, 27.93234, 0)), False)
sketch3.addGeometry(Part.LineSegment(Vector(-14.146307, 27.93234, 0), Vector(-14.14276, 29.27373, 0)), False)
sketch3.addGeometry(Part.LineSegment(Vector(-14.14276, 29.27373, 0), Vector(-14.393137, 30.59155, 0)), False)
sketch3.addGeometry(Part.LineSegment(Vector(-14.393137, 30.59155, 0), Vector(-14.888389, 31.838172, 0)), False)
sketch3.addGeometry(Part.LineSegment(Vector(-14.888389, 31.838172, 0), Vector(-15.610615, 32.968538, 0)), False)
sketch3.addGeometry(Part.LineSegment(Vector(-15.610615, 32.968538, 0), Vector(-16.533714, 33.941795, 0)), False)
sketch3.addGeometry(Part.LineSegment(Vector(-16.533714, 33.941795, 0), Vector(-17.62432, 34.722766, 0)), False)
sketch3.addGeometry(Part.LineSegment(Vector(-17.62432, 34.722766, 0), Vector(-18.843018, 35.283226, 0)), False)
sketch3.addGeometry(Part.LineSegment(Vector(-18.843018, 35.283226, 0), Vector(-20.14576, 35.602917, 0)), False)
sketch3.addGeometry(Part.LineSegment(Vector(-20.14576, 35.602917, 0), Vector(-21.485462, 35.670285, 0)), False)
sketch3.addGeometry(Part.LineSegment(Vector(-21.485462, 35.670285, 0), Vector(-22.813703, 35.482896, 0)), False)
sketch3.addGeometry(Part.LineSegment(Vector(-22.813703, 35.482896, 0), Vector(-24.082477, 35.047522, 0)), False)
sketch3.addGeometry(Part.LineSegment(Vector(-24.082477, 35.047522, 0), Vector(-25.245928, 34.379899, 0)), False)
sketch3.addGeometry(Part.LineSegment(Vector(-25.245928, 34.379899, 0), Vector(-26.262005, 33.504156, 0)), False)
sketch3.addGeometry(Part.LineSegment(Vector(-59.344061, 41.980237, 0), Vector(-32.953599, 62.004272, 0)), False)
sketch3.addGeometry(Part.LineSegment(Vector(-32.953599, 62.004272, 0), Vector(-51.936974, 62.004272, 0)), False)
sketch3.addGeometry(Part.LineSegment(Vector(-51.936974, 62.004272, 0), Vector(-59.344061, 41.980237, 0)), False)
sketch3.addGeometry(Part.LineSegment(Vector(-47.885576, 16.722531, 0), Vector(-58.392178, 20.357819, 0)), False)
sketch3.addGeometry(Part.LineSegment(Vector(-58.392178, 20.357819, 0), Vector(-55.806396, 6.948146, 0)), False)
sketch3.addGeometry(Part.LineSegment(Vector(-55.806396, 6.948146, 0), Vector(-47.885576, 16.722531, 0)), False)
sketch3.addConstraint(Sketcher.Constraint("Coincident", 0, 2, 1, 1))
sketch3.addConstraint(Sketcher.Constraint("Coincident", 1, 2, 2, 1))
sketch3.addConstraint(Sketcher.Constraint("Coincident", 2, 2, 3, 1))
sketch3.addConstraint(Sketcher.Constraint("Coincident", 3, 2, 4, 1))
sketch3.addConstraint(Sketcher.Constraint("Coincident", 4, 2, 5, 1))
sketch3.addConstraint(Sketcher.Constraint("Coincident", 5, 2, 6, 1))
sketch3.addConstraint(Sketcher.Constraint("Coincident", 6, 2, 7, 1))
sketch3.addConstraint(Sketcher.Constraint("Coincident", 7, 2, 8, 1))
sketch3.addConstraint(Sketcher.Constraint("Coincident", 8, 2, 9, 1))
sketch3.addConstraint(Sketcher.Constraint("Coincident", 9, 2, 10, 1))
sketch3.addConstraint(Sketcher.Constraint("Coincident", 10, 2, 11, 1))
sketch3.addConstraint(Sketcher.Constraint("Coincident", 11, 2, 12, 1))
sketch3.addConstraint(Sketcher.Constraint("Coincident", 12, 2, 13, 1))
sketch3.addConstraint(Sketcher.Constraint("Coincident", 13, 2, 14, 1))
sketch3.addConstraint(Sketcher.Constraint("Coincident", 14, 2, 15, 1))
sketch3.addConstraint(Sketcher.Constraint("Coincident", 15, 2, 16, 1))
sketch3.addConstraint(Sketcher.Constraint("Coincident", 16, 2, 17, 1))
sketch3.addConstraint(Sketcher.Constraint("Coincident", 17, 2, 18, 1))
sketch3.addConstraint(Sketcher.Constraint("Coincident", 18, 2, 19, 1))
sketch3.addConstraint(Sketcher.Constraint("Coincident", 19, 2, 20, 1))
sketch3.addConstraint(Sketcher.Constraint("Coincident", 20, 2, 21, 1))
sketch3.addConstraint(Sketcher.Constraint("Coincident", 21, 2, 22, 1))
sketch3.addConstraint(Sketcher.Constraint("Coincident", 22, 2, 23, 1))
sketch3.addConstraint(Sketcher.Constraint("Coincident", 23, 2, 24, 1))
sketch3.addConstraint(Sketcher.Constraint("Coincident", 24, 2, 25, 1))
sketch3.addConstraint(Sketcher.Constraint("Coincident", 25, 2, 26, 1))
sketch3.addConstraint(Sketcher.Constraint("Coincident", 26, 2, 27, 1))
sketch3.addConstraint(Sketcher.Constraint("Coincident", 27, 2, 28, 1))
sketch3.addConstraint(Sketcher.Constraint("Coincident", 28, 2, 29, 1))
sketch3.addConstraint(Sketcher.Constraint("Coincident", 29, 2, 30, 1))
sketch3.addConstraint(Sketcher.Constraint("Coincident", 30, 2, 31, 1))
sketch3.addConstraint(Sketcher.Constraint("Coincident", 31, 2, 32, 1))
sketch3.addConstraint(Sketcher.Constraint("Coincident", 32, 2, 0, 1))
sketch3.addConstraint(Sketcher.Constraint("Coincident", 33, 2, 34, 1))
sketch3.addConstraint(Sketcher.Constraint("Coincident", 34, 2, 35, 1))
sketch3.addConstraint(Sketcher.Constraint("Coincident", 35, 2, 33, 1))
sketch3.addConstraint(Sketcher.Constraint("Coincident", 36, 2, 37, 1))
sketch3.addConstraint(Sketcher.Constraint("Coincident", 37, 2, 38, 1))
sketch3.addConstraint(Sketcher.Constraint("Coincident", 38, 2, 36, 1))
sketch3.addConstraint(Sketcher.Constraint("Horizontal", 34))
sketch3.addConstraint(Sketcher.Constraint("DistanceY", 12, 2, 15, 2, 1.641999))
sketch3.addConstraint(Sketcher.Constraint("DistanceY", -1, 1, 11, 2, 21.574702))
sketch3.addConstraint(Sketcher.Constraint("DistanceY", -1, 1, 31, 2, 34.379899))
sketch3.addConstraint(Sketcher.Constraint("DistanceX", 33, 2, -1, 1, 32.953599))
sketch3.addConstraint(Sketcher.Constraint("DistanceY", 6, 2, 5, 2, 1.1939))
sketch3.addConstraint(Sketcher.Constraint("DistanceX", 3, 2, 7, 2, 1.936399))
sketch3.addConstraint(Sketcher.Constraint("DistanceY", 8, 2, 6, 2, 1.9377))
sketch3.addConstraint(Sketcher.Constraint("DistanceY", 12, 2, 13, 2, 0.312798))
sketch3.addConstraint(Sketcher.Constraint("DistanceY", 9, 2, 14, 2, 0.290601))
sketch3.addConstraint(Sketcher.Constraint("DistanceX", 24, 2, 23, 2, 0.923098))
sketch3.addConstraint(Sketcher.Constraint("DistanceX", 28, 2, 27, 2, 1.339702))
sketch3.addConstraint(Sketcher.Constraint("DistanceX", 38, 2, 4, 2, 19.785401))
sketch3.addConstraint(Sketcher.Constraint("Distance", 38, 12.580859))
sketch3.addConstraint(Sketcher.Constraint("DistanceX", 34, 2, 34, 1, 18.983374))
sketch3.addConstraint(Sketcher.Constraint("DistanceY", -1, 1, 2, 2, 29.97524))
sketch3.addConstraint(Sketcher.Constraint("DistanceX", 3, 2, -1, 1, 28.224152))
sketch3.addConstraint(Sketcher.Constraint("DistanceY", -1, 1, 3, 2, 28.640261))
sketch3.addConstraint(Sketcher.Constraint("DistanceY", -1, 1, 4, 2, 27.304608))
sketch3.addConstraint(Sketcher.Constraint("DistanceY", -1, 1, 7, 2, 23.766059))
sketch3.addConstraint(Sketcher.Constraint("DistanceX", 8, 2, -1, 1, 25.27632))
sketch3.addConstraint(Sketcher.Constraint("DistanceY", -1, 1, 9, 2, 22.211189))
sketch3.addConstraint(Sketcher.Constraint("DistanceX", 10, 2, -1, 1, 22.849962))
sketch3.addConstraint(Sketcher.Constraint("DistanceY", -1, 1, 10, 2, 21.769112))
sketch3.addConstraint(Sketcher.Constraint("DistanceX", 11, 2, -1, 1, 21.52273))
sketch3.addConstraint(Sketcher.Constraint("DistanceX", 12, 2, -1, 1, 20.182691))
sketch3.addConstraint(Sketcher.Constraint("DistanceX", 15, 2, -1, 1, 16.561911))
sketch3.addConstraint(Sketcher.Constraint("DistanceX", 16, 2, -1, 1, 15.633679))
sketch3.addConstraint(Sketcher.Constraint("DistanceX", 18, 2, -1, 1, 14.403649))
sketch3.addConstraint(Sketcher.Constraint("DistanceY", -1, 1, 19, 2, 27.93234))
sketch3.addConstraint(Sketcher.Constraint("DistanceX", 20, 2, -1, 1, 14.14276))
sketch3.addConstraint(Sketcher.Constraint("DistanceY", -1, 1, 20, 2, 29.27373))
sketch3.addConstraint(Sketcher.Constraint("DistanceY", -1, 1, 21, 2, 30.59155))
sketch3.addConstraint(Sketcher.Constraint("DistanceX", 22, 2, -1, 1, 14.888389))
sketch3.addConstraint(Sketcher.Constraint("DistanceY", -1, 1, 22, 2, 31.838172))
sketch3.addConstraint(Sketcher.Constraint("DistanceX", 25, 2, -1, 1, 17.62432))
sketch3.addConstraint(Sketcher.Constraint("DistanceX", 27, 2, -1, 1, 20.14576))
sketch3.addConstraint(Sketcher.Constraint("DistanceY", -1, 1, 33, 2, 62.004272))
sketch3.addConstraint(Sketcher.Constraint("DistanceX", 35, 2, -1, 1, 59.344061))
sketch3.addConstraint(Sketcher.Constraint("DistanceX", 36, 2, -1, 1, 58.392178))
sketch3.addConstraint(Sketcher.Constraint("DistanceY", -1, 1, 36, 2, 20.357819))
sketch3.addConstraint(Sketcher.Constraint("DistanceY", -1, 1, 38, 2, 16.722531))
sketch3.addConstraint(Sketcher.Constraint("DistanceY", 1, 2, 0, 2, 1.19065))
sketch3.addConstraint(Sketcher.Constraint("DistanceX", 2, 2, 0, 2, 0.999129))
sketch3.addConstraint(Sketcher.Constraint("DistanceX", 4, 2, 2, 2, 0.007061))
sketch3.addConstraint(Sketcher.Constraint("DistanceX", 4, 2, 5, 2, 0.37451))
sketch3.addConstraint(Sketcher.Constraint("DistanceY", 5, 2, 1, 2, 5.24474))
sketch3.addConstraint(Sketcher.Constraint("DistanceX", 5, 2, 6, 2, 0.611508))
sketch3.addConstraint(Sketcher.Constraint("DistanceX", 1, 2, 6, 2, 0.597641))
sketch3.addConstraint(Sketcher.Constraint("DistanceX", 2, 2, 7, 2, 1.805362))
sketch3.addConstraint(Sketcher.Constraint("DistanceX", 6, 2, 9, 2, 2.997741))
sketch3.addConstraint(Sketcher.Constraint("DistanceY", 12, 2, 8, 2, 1.24997))
sketch3.addConstraint(Sketcher.Constraint("DistanceY", 11, 2, 13, 2, 0.373081))
sketch3.addConstraint(Sketcher.Constraint("DistanceX", 9, 2, 13, 2, 5.238139))
sketch3.addConstraint(Sketcher.Constraint("DistanceX", 12, 2, 14, 2, 2.526059))
sketch3.addConstraint(Sketcher.Constraint("DistanceY", 12, 2, 16, 2, 2.610361))
sketch3.addConstraint(Sketcher.Constraint("DistanceY", 16, 2, 17, 2, 1.126531))
sketch3.addConstraint(Sketcher.Constraint("DistanceX", 13, 2, 17, 2, 3.972791))
sketch3.addConstraint(Sketcher.Constraint("DistanceY", 15, 2, 18, 2, 3.338879))
sketch3.addConstraint(Sketcher.Constraint("DistanceX", 17, 2, 19, 2, 0.759179))
sketch3.addConstraint(Sketcher.Constraint("DistanceX", 21, 2, 19, 2, 0.246831))
sketch3.addConstraint(Sketcher.Constraint("DistanceX", 23, 2, 21, 2, 1.217478))
sketch3.addConstraint(Sketcher.Constraint("DistanceY", 20, 2, 23, 2, 3.694808))
sketch3.addConstraint(Sketcher.Constraint("DistanceY", 24, 2, 25, 2, 0.780971))
sketch3.addConstraint(Sketcher.Constraint("DistanceY", 23, 2, 25, 2, 1.754228))
sketch3.addConstraint(Sketcher.Constraint("DistanceY", 25, 2, 26, 2, 0.56046))
sketch3.addConstraint(Sketcher.Constraint("DistanceX", 26, 2, 22, 2, 3.954629))
sketch3.addConstraint(Sketcher.Constraint("DistanceY", 26, 2, 27, 2, 0.319691))
sketch3.addConstraint(Sketcher.Constraint("DistanceY", 27, 2, 28, 2, 0.067368))
sketch3.addConstraint(Sketcher.Constraint("DistanceX", 29, 2, 28, 2, 1.328241))
sketch3.addConstraint(Sketcher.Constraint("DistanceY", 29, 2, 28, 2, 0.187389))
sketch3.addConstraint(Sketcher.Constraint("DistanceX", 0, 2, 30, 2, 3.011508))
sketch3.addConstraint(Sketcher.Constraint("DistanceX", 31, 2, 30, 2, 1.163451))
sketch3.addConstraint(Sketcher.Constraint("DistanceX", 0, 2, 32, 2, 0.83198))
sketch3.addConstraint(Sketcher.Constraint("DistanceY", 0, 2, 32, 2, 1.052211))
sketch3.addConstraint(Sketcher.Constraint("DistanceY", 30, 2, 33, 2, 26.95675))
sketch3.addConstraint(Sketcher.Constraint("DistanceY", 1, 2, 35, 2, 10.718942))
sketch3.addConstraint(Sketcher.Constraint("DistanceX", 37, 2, 6, 2, 28.692239))
pad3 = doc.addObject("PartDesign::Pad", "Pad002")
body.addObject(pad3)
pad3.Profile = sketch3
pad3.Length = 15
body2 = doc.addObject("PartDesign::Body", "Body001")

sketch4 = doc.addObject("Sketcher::SketchObject", "Sketch003")
body2.addObject(sketch4)
sketch4.AttachmentSupport = (doc.getObject("XY_Plane001"), [""])
sketch4.MapMode = "FlatFace"
sketch4.AttachmentOffset = App.Placement(Vector(0, 0, 55), App.Rotation())
sketch4.addGeometry(Part.LineSegment(Vector(-43.233089, 42.751611, 0), Vector(-31.852528, 33.102162, 0)), False)
sketch4.addGeometry(Part.LineSegment(Vector(-31.852528, 33.102162, 0), Vector(-29.186141, 47.782741, 0)), False)
sketch4.addGeometry(Part.LineSegment(Vector(-29.186141, 47.782741, 0), Vector(-43.233089, 42.751611, 0)), False)
sketch4.addConstraint(Sketcher.Constraint("Coincident", 0, 2, 1, 1))
sketch4.addConstraint(Sketcher.Constraint("Coincident", 1, 2, 2, 1))
sketch4.addConstraint(Sketcher.Constraint("Coincident", 2, 2, 0, 1))
sketch4.addConstraint(Sketcher.Constraint("Equal", 0, 1))
sketch4.addConstraint(Sketcher.Constraint("Equal", 1, 2))
sketch4.addConstraint(Sketcher.Constraint("Distance", 0, 14.920759))
sketch4.addConstraint(Sketcher.Constraint("DistanceX", 0, 2, -1, 1, 31.852528))
sketch4.addConstraint(Sketcher.Constraint("DistanceY", -1, 1, 0, 2, 33.102162))
sketch4.addConstraint(Sketcher.Constraint("DistanceX", 1, 2, -1, 1, 29.186141))
pad4 = doc.addObject("PartDesign::Pad", "Pad003")
body2.addObject(pad4)
pad4.Profile = sketch4
pad4.Length = 15

doc.recompute()
